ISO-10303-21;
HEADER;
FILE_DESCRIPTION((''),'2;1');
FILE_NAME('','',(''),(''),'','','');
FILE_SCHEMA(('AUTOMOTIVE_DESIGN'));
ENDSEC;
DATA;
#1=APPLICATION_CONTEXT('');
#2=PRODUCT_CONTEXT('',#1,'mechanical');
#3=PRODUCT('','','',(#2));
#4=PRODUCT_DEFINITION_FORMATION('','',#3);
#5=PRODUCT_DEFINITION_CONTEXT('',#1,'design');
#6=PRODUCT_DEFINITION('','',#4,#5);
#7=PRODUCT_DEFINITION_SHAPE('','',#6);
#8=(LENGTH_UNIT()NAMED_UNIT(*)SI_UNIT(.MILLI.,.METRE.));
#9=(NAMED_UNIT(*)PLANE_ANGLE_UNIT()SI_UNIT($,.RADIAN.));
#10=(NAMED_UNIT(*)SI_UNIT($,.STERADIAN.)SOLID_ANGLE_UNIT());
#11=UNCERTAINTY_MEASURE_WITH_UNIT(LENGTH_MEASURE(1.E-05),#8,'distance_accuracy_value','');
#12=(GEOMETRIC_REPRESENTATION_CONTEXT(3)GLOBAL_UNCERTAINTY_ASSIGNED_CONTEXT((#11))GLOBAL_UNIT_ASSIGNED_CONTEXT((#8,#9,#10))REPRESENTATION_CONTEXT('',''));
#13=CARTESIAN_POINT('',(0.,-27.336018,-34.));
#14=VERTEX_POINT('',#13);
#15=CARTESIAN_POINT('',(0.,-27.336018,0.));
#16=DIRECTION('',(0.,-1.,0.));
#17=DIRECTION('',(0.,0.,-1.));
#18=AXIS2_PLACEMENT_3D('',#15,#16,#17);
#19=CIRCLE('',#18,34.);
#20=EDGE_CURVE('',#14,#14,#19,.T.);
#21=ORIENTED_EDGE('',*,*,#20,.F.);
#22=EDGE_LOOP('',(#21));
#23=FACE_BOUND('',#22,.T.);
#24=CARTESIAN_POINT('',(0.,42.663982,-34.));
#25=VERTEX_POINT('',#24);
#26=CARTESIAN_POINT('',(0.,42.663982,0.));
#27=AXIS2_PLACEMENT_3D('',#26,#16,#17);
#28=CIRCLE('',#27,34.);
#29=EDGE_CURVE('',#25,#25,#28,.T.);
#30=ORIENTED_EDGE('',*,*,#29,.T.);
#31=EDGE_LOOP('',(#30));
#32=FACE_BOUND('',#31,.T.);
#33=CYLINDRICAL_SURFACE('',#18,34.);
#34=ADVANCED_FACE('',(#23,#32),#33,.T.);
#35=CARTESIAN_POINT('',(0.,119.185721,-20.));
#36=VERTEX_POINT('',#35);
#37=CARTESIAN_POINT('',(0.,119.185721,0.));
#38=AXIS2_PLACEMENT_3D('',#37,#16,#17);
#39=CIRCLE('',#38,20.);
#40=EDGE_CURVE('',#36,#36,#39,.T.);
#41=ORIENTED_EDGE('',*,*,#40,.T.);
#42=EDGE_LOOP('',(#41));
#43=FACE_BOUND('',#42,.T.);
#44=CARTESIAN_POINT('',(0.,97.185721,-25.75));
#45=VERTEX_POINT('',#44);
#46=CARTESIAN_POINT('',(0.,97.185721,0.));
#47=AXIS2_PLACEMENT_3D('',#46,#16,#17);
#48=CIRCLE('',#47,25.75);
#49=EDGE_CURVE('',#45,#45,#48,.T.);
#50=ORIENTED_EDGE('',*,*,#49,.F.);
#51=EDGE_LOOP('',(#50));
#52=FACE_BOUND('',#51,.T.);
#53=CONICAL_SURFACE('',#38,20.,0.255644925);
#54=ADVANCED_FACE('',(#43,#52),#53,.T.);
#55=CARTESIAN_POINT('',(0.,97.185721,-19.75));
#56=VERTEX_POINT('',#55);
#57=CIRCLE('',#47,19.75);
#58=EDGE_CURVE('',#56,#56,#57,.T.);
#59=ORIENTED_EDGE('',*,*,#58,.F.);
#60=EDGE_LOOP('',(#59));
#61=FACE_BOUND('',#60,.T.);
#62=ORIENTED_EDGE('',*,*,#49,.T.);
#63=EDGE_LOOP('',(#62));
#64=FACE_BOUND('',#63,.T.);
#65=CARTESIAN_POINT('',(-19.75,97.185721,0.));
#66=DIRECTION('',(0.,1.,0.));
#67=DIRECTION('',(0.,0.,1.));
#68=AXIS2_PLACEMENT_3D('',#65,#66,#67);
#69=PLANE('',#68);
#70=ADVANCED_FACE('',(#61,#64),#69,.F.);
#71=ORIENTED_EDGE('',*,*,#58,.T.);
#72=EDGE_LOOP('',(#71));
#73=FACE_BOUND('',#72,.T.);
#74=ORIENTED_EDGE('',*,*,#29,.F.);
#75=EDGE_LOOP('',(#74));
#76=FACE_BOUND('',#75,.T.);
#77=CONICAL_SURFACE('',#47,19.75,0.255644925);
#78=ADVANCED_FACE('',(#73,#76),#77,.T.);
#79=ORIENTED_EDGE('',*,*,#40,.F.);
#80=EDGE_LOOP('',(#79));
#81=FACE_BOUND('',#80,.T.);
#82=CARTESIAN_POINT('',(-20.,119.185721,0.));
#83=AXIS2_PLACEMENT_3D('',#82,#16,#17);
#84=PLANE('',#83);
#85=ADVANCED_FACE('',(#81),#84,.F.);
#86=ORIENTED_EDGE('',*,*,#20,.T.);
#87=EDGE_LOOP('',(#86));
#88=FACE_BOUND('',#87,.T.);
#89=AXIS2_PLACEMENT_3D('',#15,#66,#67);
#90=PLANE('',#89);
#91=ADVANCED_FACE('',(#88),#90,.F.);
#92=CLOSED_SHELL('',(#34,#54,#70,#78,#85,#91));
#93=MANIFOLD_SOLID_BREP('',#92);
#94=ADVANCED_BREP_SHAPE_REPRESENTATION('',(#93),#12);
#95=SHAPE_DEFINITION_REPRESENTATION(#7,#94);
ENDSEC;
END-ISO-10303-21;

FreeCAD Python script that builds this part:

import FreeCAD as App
import Part
import Sketcher
from FreeCAD import Vector


def add_polygon(sketch, points):
    """Adds a closed chain of lines whose ends are joined by coincident constraints."""
    first, n = sketch.GeometryCount, len(points)
    for a, b in zip(points, points[1:] + points[:1]):
        sketch.addGeometry(Part.LineSegment(App.Vector(*a, 0), App.Vector(*b, 0)), False)
    for i in range(n):
        sketch.addConstraint(Sketcher.Constraint("Coincident", first + i, 2, first + (i + 1) % n, 1))

doc = App.newDocument("Part")
body = doc.addObject("PartDesign::Body", "Body")

# Sketch on XY plane
sketch1 = body.newObject("Sketcher::SketchObject", "Sketch")
sketch1.AttachmentSupport = (doc.getObject("XY_Plane"), [""])
sketch1.MapMode = "FlatFace"
add_polygon(sketch1, [(-34, -27.336018), (0, -27.336018), (0, 119.185721), (-20, 119.185721), (-25.75, 97.185721), (-19.75, 97.185721), (-34, 42.663982)])  # lines 0-6
sketch1.addConstraint([
    Sketcher.Constraint("Horizontal", 0),
    Sketcher.Constraint("Vertical", 1),
    Sketcher.Constraint("Horizontal", 2),
    Sketcher.Constraint("Horizontal", 4),
    Sketcher.Constraint("Vertical", 6),
    Sketcher.Constraint("PointOnObject", 0, 2, -2),
    Sketcher.Constraint("Parallel", 3, 5),
    Sketcher.Constraint("DistanceX", 0, 1, 0, 2, 34.0),
    Sketcher.Constraint("DistanceX", 2, 2, 2, 1, 20.0),
    Sketcher.Constraint("DistanceX", 4, 1, 4, 2, 6.0),
    Sketcher.Constraint("DistanceY", 6, 2, 6, 1, 70.0),
    Sketcher.Constraint("DistanceY", 3, 2, 2, 2, 22.0),
    Sketcher.Constraint("DistanceX", 3, 2, -1, 1, 25.75),
    Sketcher.Constraint("DistanceY", 0, 2, -1, 1, 27.336018),
])
revolution = body.newObject("PartDesign::Revolution", "Revolution")
revolution.Profile = sketch1
revolution.ReferenceAxis = (sketch1, ["V_Axis"])
revolution.Angle = 360

doc.recompute()
